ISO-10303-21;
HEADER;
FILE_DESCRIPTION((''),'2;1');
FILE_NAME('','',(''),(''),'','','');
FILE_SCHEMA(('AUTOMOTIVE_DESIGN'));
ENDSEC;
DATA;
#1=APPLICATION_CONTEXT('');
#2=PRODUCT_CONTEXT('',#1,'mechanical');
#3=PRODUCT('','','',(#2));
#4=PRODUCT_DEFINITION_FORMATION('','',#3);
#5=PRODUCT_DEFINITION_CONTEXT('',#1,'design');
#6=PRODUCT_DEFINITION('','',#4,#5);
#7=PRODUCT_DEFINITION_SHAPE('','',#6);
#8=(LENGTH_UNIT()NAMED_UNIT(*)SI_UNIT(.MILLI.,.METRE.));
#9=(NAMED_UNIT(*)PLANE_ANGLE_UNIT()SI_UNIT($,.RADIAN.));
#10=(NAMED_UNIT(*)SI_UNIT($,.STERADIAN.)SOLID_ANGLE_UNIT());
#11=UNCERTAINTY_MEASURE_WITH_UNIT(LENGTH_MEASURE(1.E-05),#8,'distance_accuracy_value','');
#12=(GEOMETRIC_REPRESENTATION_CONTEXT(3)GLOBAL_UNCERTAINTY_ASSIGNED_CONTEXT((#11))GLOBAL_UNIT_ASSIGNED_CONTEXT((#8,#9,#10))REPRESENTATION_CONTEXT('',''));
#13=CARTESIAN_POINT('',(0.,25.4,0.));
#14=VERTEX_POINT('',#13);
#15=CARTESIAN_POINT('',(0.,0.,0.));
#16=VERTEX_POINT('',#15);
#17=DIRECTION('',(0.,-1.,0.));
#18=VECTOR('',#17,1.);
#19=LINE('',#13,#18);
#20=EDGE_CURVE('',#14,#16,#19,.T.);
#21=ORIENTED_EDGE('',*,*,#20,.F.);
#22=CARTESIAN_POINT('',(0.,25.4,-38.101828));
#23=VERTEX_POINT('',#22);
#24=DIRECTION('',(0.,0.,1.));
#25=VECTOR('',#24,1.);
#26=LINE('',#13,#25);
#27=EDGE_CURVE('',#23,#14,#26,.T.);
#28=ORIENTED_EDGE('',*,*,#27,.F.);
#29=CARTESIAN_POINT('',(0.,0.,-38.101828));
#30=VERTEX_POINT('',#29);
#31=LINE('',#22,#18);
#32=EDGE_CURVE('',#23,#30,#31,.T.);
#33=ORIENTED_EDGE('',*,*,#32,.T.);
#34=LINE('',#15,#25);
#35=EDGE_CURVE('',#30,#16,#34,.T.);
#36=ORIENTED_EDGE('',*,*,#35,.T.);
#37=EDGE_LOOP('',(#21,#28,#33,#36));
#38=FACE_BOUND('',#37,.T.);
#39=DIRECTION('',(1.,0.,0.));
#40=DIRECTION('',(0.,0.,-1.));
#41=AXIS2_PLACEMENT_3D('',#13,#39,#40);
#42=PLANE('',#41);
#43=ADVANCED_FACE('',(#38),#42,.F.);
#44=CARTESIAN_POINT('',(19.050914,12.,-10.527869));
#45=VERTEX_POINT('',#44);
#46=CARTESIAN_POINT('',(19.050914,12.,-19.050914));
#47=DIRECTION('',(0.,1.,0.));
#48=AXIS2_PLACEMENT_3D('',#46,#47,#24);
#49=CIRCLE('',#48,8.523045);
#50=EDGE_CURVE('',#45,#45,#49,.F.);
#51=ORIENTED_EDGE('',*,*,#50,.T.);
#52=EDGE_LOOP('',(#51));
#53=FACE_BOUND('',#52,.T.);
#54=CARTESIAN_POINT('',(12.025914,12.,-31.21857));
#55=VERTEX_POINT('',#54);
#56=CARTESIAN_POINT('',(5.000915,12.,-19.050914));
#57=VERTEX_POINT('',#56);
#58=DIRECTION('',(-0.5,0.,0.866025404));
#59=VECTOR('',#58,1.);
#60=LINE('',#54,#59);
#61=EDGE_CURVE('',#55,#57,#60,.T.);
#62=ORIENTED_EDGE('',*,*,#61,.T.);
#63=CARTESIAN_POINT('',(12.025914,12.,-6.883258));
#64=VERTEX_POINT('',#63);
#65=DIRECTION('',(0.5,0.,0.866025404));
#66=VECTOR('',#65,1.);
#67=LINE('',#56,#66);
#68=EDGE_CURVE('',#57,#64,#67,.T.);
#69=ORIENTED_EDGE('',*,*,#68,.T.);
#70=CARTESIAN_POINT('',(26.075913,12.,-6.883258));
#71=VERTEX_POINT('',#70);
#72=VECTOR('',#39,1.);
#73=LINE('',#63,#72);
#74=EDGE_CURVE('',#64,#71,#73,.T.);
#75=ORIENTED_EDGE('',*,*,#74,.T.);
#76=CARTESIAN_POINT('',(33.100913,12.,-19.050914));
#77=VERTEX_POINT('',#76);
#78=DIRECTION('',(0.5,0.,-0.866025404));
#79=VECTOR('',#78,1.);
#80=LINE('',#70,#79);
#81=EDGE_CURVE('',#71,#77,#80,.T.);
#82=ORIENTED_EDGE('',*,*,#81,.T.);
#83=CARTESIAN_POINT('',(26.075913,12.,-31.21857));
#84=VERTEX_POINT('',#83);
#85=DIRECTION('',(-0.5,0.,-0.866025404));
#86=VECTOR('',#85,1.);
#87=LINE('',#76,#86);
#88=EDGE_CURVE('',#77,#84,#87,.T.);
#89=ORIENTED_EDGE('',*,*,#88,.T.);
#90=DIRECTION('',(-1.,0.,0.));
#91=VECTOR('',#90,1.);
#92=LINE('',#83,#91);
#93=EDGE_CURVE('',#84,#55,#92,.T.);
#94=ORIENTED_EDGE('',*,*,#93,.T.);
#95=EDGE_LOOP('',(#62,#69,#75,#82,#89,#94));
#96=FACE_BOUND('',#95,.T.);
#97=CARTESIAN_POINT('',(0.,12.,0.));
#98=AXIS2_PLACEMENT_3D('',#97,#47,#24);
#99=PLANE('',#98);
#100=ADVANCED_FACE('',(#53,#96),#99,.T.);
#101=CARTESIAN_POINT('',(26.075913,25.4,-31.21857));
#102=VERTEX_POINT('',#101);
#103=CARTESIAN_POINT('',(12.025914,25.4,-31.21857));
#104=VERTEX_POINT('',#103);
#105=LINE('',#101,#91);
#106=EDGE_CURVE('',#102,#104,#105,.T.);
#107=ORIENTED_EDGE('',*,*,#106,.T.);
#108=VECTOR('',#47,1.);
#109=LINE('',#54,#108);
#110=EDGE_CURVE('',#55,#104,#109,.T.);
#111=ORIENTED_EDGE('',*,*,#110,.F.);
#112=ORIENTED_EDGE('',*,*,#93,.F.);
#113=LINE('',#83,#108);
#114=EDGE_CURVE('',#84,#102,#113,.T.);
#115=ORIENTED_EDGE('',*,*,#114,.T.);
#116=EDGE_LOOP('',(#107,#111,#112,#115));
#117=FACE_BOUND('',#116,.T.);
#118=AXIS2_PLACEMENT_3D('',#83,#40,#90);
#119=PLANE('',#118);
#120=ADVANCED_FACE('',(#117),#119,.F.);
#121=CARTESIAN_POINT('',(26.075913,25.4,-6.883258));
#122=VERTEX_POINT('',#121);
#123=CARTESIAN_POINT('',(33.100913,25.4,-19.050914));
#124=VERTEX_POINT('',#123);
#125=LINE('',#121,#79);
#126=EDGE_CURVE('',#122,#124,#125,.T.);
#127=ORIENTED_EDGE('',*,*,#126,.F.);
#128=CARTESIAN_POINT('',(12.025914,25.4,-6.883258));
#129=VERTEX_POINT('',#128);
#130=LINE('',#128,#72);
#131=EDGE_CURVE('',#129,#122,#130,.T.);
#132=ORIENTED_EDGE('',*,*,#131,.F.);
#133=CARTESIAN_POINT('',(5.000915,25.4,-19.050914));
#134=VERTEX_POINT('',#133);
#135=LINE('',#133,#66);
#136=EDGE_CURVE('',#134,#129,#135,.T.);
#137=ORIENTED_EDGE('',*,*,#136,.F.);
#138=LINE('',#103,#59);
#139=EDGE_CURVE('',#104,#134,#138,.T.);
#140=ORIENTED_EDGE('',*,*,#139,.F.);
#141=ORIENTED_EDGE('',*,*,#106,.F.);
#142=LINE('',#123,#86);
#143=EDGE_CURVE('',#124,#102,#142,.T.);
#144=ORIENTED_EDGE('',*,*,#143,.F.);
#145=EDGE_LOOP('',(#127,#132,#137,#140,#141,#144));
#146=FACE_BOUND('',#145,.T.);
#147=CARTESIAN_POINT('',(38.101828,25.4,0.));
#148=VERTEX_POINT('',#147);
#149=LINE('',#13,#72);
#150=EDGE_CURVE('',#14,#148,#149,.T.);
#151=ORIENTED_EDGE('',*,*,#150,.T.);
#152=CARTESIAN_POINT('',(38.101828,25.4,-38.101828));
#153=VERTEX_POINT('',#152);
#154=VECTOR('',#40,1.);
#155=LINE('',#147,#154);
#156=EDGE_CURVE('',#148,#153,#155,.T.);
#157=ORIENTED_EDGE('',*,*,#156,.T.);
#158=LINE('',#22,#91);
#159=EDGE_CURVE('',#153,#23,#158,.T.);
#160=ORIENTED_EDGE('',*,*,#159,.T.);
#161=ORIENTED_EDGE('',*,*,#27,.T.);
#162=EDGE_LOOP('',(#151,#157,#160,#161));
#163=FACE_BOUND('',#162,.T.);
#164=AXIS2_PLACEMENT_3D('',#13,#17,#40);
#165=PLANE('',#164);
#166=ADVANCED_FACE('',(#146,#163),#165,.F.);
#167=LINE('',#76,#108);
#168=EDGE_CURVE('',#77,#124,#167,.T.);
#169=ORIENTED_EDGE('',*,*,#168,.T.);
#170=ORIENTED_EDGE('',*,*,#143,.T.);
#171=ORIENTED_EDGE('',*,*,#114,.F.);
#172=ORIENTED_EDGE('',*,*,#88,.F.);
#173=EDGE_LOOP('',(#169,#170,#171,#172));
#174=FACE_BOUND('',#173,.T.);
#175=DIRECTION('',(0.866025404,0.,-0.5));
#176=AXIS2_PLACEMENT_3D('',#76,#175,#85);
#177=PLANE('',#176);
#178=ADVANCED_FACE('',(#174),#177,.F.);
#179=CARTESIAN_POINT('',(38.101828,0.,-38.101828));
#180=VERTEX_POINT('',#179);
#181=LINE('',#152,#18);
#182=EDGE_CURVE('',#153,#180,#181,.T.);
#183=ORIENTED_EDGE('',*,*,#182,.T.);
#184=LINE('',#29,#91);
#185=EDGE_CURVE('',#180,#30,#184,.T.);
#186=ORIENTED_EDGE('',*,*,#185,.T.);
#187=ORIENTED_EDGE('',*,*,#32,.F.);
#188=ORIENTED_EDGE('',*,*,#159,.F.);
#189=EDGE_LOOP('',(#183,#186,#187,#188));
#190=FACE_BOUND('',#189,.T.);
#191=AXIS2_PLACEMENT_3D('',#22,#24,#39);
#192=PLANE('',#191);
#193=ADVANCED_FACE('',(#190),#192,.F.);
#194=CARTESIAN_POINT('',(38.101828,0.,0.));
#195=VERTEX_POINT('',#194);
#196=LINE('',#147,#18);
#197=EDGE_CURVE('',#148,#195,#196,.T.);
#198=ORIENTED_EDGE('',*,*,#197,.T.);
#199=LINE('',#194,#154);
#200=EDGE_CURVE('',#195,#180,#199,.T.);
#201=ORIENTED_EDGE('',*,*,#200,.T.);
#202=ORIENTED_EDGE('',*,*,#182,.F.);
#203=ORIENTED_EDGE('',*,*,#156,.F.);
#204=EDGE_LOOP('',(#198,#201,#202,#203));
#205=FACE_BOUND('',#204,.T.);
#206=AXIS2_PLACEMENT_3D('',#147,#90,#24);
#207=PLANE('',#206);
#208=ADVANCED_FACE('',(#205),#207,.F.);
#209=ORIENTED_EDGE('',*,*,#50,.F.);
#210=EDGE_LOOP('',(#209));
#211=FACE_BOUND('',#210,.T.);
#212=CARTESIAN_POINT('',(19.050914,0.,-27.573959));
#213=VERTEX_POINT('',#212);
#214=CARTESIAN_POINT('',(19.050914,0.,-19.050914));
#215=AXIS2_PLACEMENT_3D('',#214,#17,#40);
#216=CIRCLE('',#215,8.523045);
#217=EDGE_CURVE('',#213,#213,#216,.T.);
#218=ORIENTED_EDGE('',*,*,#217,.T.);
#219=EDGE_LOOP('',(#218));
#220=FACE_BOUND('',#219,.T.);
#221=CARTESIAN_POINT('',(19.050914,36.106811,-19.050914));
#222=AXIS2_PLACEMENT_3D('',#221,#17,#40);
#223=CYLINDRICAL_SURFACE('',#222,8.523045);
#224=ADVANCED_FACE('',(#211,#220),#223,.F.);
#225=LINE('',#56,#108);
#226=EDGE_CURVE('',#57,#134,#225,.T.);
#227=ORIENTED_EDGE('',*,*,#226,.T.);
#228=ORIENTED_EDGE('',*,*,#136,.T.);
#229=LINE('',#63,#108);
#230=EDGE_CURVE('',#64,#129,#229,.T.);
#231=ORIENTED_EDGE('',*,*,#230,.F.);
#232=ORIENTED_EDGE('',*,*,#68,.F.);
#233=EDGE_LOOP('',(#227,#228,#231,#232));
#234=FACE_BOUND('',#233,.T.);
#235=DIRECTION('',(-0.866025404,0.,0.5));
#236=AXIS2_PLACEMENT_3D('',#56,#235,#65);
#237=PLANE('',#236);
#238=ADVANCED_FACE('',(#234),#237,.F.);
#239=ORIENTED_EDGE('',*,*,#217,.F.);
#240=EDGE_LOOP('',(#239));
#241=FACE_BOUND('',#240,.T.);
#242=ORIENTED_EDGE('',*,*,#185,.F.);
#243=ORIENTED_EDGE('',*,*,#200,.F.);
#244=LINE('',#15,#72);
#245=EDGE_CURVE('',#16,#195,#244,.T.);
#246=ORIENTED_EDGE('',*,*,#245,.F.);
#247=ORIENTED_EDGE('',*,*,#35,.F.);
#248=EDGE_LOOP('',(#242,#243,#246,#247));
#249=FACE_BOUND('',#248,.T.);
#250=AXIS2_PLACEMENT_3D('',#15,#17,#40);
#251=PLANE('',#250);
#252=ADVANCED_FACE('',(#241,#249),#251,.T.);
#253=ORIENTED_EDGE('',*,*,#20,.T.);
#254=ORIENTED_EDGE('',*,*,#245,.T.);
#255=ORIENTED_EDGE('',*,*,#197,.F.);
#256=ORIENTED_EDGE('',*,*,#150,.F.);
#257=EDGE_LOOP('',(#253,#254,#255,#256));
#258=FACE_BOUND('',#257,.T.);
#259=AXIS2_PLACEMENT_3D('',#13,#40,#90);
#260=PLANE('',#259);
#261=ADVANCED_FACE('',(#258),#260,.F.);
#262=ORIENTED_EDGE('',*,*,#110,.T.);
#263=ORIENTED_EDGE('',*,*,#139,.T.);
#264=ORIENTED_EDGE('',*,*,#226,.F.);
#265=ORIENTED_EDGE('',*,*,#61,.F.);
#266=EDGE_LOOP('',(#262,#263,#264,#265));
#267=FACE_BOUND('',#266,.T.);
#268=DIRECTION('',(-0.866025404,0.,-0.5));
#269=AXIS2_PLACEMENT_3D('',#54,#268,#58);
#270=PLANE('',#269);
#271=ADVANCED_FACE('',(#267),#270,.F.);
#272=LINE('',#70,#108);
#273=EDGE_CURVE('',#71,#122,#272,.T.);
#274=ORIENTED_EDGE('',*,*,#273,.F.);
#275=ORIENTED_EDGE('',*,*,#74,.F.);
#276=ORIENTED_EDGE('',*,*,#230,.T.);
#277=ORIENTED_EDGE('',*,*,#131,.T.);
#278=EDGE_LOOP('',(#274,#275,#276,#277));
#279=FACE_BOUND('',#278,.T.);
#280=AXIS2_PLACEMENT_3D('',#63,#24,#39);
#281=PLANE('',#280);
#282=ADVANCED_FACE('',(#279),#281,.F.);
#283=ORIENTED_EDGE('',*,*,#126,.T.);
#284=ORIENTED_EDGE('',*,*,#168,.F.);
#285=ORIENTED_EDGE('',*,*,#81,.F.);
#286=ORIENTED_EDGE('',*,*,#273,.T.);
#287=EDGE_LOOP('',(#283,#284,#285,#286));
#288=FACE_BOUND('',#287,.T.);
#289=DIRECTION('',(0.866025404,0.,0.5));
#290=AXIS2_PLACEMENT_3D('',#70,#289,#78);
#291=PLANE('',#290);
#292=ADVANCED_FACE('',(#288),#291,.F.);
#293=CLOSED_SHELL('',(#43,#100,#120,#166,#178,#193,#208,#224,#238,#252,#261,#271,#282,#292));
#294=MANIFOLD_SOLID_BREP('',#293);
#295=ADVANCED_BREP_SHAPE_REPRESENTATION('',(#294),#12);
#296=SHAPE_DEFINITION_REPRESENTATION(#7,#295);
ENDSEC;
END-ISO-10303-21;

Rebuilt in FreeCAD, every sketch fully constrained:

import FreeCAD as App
import Part
import Sketcher
from FreeCAD import Vector
Q = App.Units.Quantity


def add_polygon(sketch, points):
    """Adds a closed chain of lines whose ends are joined by coincident constraints."""
    first, n = sketch.GeometryCount, len(points)
    for a, b in zip(points, points[1:] + points[:1]):
        sketch.addGeometry(Part.LineSegment(App.Vector(*a, 0), App.Vector(*b, 0)), False)
    for i in range(n):
        sketch.addConstraint(Sketcher.Constraint("Coincident", first + i, 2, first + (i + 1) % n, 1))

doc = App.newDocument("Part")
body = doc.addObject("PartDesign::Body", "Body")

# Sketch on XZ plane
sketch1 = body.newObject("Sketcher::SketchObject", "Sketch")
sketch1.AttachmentSupport = (doc.getObject("XZ_Plane"), [""])
sketch1.MapMode = "FlatFace"
add_polygon(sketch1, [(0, -38.101828), (0, 0), (38.101828, 0), (38.101828, -38.101828)])  # lines 0-3
sketch1.addConstraint([
    Sketcher.Constraint("Vertical", 0),
    Sketcher.Constraint("Horizontal", 1),
    Sketcher.Constraint("Vertical", 2),
    Sketcher.Constraint("Horizontal", 3),
    Sketcher.Constraint("Coincident", 0, 2, -1, 1),
    Sketcher.Constraint("Equal", 3, 0),
    Sketcher.Constraint("DistanceX", 1, 1, 1, 2, 38.101828),
])
pad1 = body.newObject("PartDesign::Pad", "Pad")
pad1.Profile = sketch1
pad1.Length = 25.4
pad1.Reversed = True

# Sketch on XZ plane
sketch2 = body.newObject("Sketcher::SketchObject", "Sketch001")
sketch2.AttachmentSupport = (doc.getObject("XZ_Plane"), [""])
sketch2.MapMode = "FlatFace"
sketch2.AttachmentOffset = App.Placement(Vector(0, 0, -25.4), App.Rotation())
add_polygon(sketch2, [(33.100913, -19.050914), (26.075913, -31.21857), (12.025914, -31.21857), (5.000915, -19.050914), (12.025914, -6.883258), (26.075913, -6.883258)])  # lines 0-5
sketch2.addConstraint([
    Sketcher.Constraint("Horizontal", 1),
    Sketcher.Constraint("Horizontal", 4),
    Sketcher.Constraint("Parallel", 0, 3),
    Sketcher.Constraint("Parallel", 2, 5),
    Sketcher.Constraint("Horizontal", 2, 2, 5, 2),
    Sketcher.Constraint("Vertical", 1, 2, 3, 2),
    Sketcher.Constraint("Vertical", 0, 2, 4, 2),
    Sketcher.Constraint("Angle", 0, Q("-120 deg")),
    Sketcher.Constraint("DistanceX", 1, 2, 1, 1, 14.049999),
    Sketcher.Constraint("DistanceX", 2, 2, 5, 2, 28.099998),
    Sketcher.Constraint("DistanceY", 0, 2, -1, 1, 31.21857),
    Sketcher.Constraint("DistanceX", -1, 1, 0, 2, 26.075913),
])
pocket1 = body.newObject("PartDesign::Pocket", "Pocket")
pocket1.Profile = sketch2
pocket1.Length = 13.4
pocket1.Reversed = True

# Sketch on XZ plane
sketch3 = body.newObject("Sketcher::SketchObject", "Sketch002")
sketch3.AttachmentSupport = (doc.getObject("XZ_Plane"), [""])
sketch3.MapMode = "FlatFace"
sketch3.addGeometry(Part.Circle(Vector(19.050914, -19.050914, 0), Vector(0, 0, 1), 8.523045), False)
sketch3.addConstraint([
    Sketcher.Constraint("Diameter", 0, 17.046089),
    Sketcher.Constraint("DistanceX", -1, 1, 0, 3, 19.050914),
    Sketcher.Constraint("DistanceY", 0, 3, -1, 1, 19.050914),
])
pocket2 = body.newObject("PartDesign::Pocket", "Pocket001")
pocket2.Profile = sketch3
pocket2.Length = 12

doc.recompute()
